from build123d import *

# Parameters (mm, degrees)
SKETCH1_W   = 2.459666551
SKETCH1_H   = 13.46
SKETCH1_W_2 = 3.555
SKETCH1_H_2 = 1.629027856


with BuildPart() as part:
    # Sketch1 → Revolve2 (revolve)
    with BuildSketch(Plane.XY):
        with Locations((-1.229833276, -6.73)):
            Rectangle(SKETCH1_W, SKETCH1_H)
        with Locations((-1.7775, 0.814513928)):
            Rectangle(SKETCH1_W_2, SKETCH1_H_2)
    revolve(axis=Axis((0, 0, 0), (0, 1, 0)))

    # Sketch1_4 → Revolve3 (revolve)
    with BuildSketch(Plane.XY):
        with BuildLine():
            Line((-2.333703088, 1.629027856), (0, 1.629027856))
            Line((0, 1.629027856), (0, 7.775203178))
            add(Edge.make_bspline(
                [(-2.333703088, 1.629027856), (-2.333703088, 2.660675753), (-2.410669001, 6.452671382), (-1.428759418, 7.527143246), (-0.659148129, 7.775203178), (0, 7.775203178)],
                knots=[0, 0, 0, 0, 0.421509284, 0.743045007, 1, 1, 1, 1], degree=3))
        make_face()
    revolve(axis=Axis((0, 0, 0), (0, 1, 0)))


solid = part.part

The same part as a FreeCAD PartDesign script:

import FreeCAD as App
import Part
import Sketcher

doc = App.newDocument("Part")
body = doc.addObject("PartDesign::Body", "Body")

# Sketch on XY plane
sketch1 = body.newObject("Sketcher::SketchObject", "Sketch")
sketch1.AttachmentSupport = (doc.getObject("XY_Plane"), [""])
sketch1.MapMode = "FlatFace"
sketch1.addGeometry(Part.LineSegment(App.Vector(-2.5, 0, 0), App.Vector(-2.5, -13.5, 0)), False)
sketch1.addGeometry(Part.LineSegment(App.Vector(-2.5, -13.5, 0), App.Vector(0, -13.5, 0)), False)
sketch1.addGeometry(Part.LineSegment(App.Vector(0, -13.5, 0), App.Vector(0, 0, 0)), False)
sketch1.addGeometry(Part.LineSegment(App.Vector(0, 0, 0), App.Vector(0, 1.6, 0)), False)
sketch1.addGeometry(Part.LineSegment(App.Vector(0, 1.6, 0), App.Vector(-3.6, 1.6, 0)), False)
sketch1.addGeometry(Part.LineSegment(App.Vector(-3.6, 1.6, 0), App.Vector(-3.6, 0, 0)), False)
sketch1.addGeometry(Part.LineSegment(App.Vector(-3.6, 0, 0), App.Vector(-2.5, 0, 0)), False)
sketch1.addConstraint(Sketcher.Constraint("Coincident", 0, 2, 1, 1))
sketch1.addConstraint(Sketcher.Constraint("Coincident", 1, 2, 2, 1))
sketch1.addConstraint(Sketcher.Constraint("Coincident", 2, 2, 3, 1))
sketch1.addConstraint(Sketcher.Constraint("Coincident", 3, 2, 4, 1))
sketch1.addConstraint(Sketcher.Constraint("Coincident", 4, 2, 5, 1))
sketch1.addConstraint(Sketcher.Constraint("Coincident", 5, 2, 6, 1))
sketch1.addConstraint(Sketcher.Constraint("Coincident", 6, 2, 0, 1))
sketch1.addConstraint(Sketcher.Constraint("Vertical", 0))
sketch1.addConstraint(Sketcher.Constraint("Horizontal", 1))
sketch1.addConstraint(Sketcher.Constraint("Vertical", 2))
sketch1.addConstraint(Sketcher.Constraint("Vertical", 3))
sketch1.addConstraint(Sketcher.Constraint("Horizontal", 4))
sketch1.addConstraint(Sketcher.Constraint("Vertical", 5))
sketch1.addConstraint(Sketcher.Constraint("Horizontal", 6))
sketch1.addConstraint(Sketcher.Constraint("Coincident", 2, 2, -1, 1))
sketch1.addConstraint(Sketcher.Constraint("PointOnObject", 5, 2, -1))
sketch1.addConstraint(Sketcher.Constraint("DistanceY", 0, 2, 0, 1, 13.46))
sketch1.addConstraint(Sketcher.Constraint("DistanceX", 4, 2, 4, 1, 3.555))
sketch1.addConstraint(Sketcher.Constraint("DistanceX", 1, 1, 1, 2, 2.459667))
sketch1.addConstraint(Sketcher.Constraint("DistanceY", 3, 1, 3, 2, 1.629028))
revolution = body.newObject("PartDesign::Revolution", "Revolution")
revolution.Profile = sketch1
revolution.ReferenceAxis = (sketch1, ["V_Axis"])
revolution.Angle = 360

# Sketch on XY plane
sketch2 = body.newObject("Sketcher::SketchObject", "Sketch001")
sketch2.AttachmentSupport = (doc.getObject("XY_Plane"), [""])
sketch2.MapMode = "FlatFace"
sketch2.addGeometry(Part.LineSegment(App.Vector(-2.333703, 1.629028, 0), App.Vector(0, 1.629028, 0)), False)
sketch2.addGeometry(Part.LineSegment(App.Vector(0, 1.629028, 0), App.Vector(0, 7.775203, 0)), False)
sketch2.addGeometry(Part.BSplineCurve([App.Vector(-2.333703, 1.629028, 0), App.Vector(-2.333703, 2.660676, 0), App.Vector(-2.410669, 6.452671, 0), App.Vector(-1.428759, 7.527143, 0), App.Vector(-0.659148, 7.775203, 0), App.Vector(0, 7.775203, 0)], [4, 1, 1, 4], [0, 0.421509284, 0.743045007, 1], False, 3, [1, 1, 1, 1, 1, 1], False), False)
sketch2.addConstraint(Sketcher.Constraint("Block", 2))
sketch2.addConstraint(Sketcher.Constraint("Coincident", 0, 2, 1, 1))
sketch2.addConstraint(Sketcher.Constraint("Coincident", 1, 2, 2, 2))
sketch2.addConstraint(Sketcher.Constraint("Coincident", 2, 1, 0, 1))
sketch2.addConstraint(Sketcher.Constraint("Horizontal", 0))
sketch2.addConstraint(Sketcher.Constraint("Vertical", 1))
revolution2 = body.newObject("PartDesign::Revolution", "Revolution001")
revolution2.Profile = sketch2
revolution2.ReferenceAxis = (sketch2, ["V_Axis"])
revolution2.Angle = 360

doc.recompute()
